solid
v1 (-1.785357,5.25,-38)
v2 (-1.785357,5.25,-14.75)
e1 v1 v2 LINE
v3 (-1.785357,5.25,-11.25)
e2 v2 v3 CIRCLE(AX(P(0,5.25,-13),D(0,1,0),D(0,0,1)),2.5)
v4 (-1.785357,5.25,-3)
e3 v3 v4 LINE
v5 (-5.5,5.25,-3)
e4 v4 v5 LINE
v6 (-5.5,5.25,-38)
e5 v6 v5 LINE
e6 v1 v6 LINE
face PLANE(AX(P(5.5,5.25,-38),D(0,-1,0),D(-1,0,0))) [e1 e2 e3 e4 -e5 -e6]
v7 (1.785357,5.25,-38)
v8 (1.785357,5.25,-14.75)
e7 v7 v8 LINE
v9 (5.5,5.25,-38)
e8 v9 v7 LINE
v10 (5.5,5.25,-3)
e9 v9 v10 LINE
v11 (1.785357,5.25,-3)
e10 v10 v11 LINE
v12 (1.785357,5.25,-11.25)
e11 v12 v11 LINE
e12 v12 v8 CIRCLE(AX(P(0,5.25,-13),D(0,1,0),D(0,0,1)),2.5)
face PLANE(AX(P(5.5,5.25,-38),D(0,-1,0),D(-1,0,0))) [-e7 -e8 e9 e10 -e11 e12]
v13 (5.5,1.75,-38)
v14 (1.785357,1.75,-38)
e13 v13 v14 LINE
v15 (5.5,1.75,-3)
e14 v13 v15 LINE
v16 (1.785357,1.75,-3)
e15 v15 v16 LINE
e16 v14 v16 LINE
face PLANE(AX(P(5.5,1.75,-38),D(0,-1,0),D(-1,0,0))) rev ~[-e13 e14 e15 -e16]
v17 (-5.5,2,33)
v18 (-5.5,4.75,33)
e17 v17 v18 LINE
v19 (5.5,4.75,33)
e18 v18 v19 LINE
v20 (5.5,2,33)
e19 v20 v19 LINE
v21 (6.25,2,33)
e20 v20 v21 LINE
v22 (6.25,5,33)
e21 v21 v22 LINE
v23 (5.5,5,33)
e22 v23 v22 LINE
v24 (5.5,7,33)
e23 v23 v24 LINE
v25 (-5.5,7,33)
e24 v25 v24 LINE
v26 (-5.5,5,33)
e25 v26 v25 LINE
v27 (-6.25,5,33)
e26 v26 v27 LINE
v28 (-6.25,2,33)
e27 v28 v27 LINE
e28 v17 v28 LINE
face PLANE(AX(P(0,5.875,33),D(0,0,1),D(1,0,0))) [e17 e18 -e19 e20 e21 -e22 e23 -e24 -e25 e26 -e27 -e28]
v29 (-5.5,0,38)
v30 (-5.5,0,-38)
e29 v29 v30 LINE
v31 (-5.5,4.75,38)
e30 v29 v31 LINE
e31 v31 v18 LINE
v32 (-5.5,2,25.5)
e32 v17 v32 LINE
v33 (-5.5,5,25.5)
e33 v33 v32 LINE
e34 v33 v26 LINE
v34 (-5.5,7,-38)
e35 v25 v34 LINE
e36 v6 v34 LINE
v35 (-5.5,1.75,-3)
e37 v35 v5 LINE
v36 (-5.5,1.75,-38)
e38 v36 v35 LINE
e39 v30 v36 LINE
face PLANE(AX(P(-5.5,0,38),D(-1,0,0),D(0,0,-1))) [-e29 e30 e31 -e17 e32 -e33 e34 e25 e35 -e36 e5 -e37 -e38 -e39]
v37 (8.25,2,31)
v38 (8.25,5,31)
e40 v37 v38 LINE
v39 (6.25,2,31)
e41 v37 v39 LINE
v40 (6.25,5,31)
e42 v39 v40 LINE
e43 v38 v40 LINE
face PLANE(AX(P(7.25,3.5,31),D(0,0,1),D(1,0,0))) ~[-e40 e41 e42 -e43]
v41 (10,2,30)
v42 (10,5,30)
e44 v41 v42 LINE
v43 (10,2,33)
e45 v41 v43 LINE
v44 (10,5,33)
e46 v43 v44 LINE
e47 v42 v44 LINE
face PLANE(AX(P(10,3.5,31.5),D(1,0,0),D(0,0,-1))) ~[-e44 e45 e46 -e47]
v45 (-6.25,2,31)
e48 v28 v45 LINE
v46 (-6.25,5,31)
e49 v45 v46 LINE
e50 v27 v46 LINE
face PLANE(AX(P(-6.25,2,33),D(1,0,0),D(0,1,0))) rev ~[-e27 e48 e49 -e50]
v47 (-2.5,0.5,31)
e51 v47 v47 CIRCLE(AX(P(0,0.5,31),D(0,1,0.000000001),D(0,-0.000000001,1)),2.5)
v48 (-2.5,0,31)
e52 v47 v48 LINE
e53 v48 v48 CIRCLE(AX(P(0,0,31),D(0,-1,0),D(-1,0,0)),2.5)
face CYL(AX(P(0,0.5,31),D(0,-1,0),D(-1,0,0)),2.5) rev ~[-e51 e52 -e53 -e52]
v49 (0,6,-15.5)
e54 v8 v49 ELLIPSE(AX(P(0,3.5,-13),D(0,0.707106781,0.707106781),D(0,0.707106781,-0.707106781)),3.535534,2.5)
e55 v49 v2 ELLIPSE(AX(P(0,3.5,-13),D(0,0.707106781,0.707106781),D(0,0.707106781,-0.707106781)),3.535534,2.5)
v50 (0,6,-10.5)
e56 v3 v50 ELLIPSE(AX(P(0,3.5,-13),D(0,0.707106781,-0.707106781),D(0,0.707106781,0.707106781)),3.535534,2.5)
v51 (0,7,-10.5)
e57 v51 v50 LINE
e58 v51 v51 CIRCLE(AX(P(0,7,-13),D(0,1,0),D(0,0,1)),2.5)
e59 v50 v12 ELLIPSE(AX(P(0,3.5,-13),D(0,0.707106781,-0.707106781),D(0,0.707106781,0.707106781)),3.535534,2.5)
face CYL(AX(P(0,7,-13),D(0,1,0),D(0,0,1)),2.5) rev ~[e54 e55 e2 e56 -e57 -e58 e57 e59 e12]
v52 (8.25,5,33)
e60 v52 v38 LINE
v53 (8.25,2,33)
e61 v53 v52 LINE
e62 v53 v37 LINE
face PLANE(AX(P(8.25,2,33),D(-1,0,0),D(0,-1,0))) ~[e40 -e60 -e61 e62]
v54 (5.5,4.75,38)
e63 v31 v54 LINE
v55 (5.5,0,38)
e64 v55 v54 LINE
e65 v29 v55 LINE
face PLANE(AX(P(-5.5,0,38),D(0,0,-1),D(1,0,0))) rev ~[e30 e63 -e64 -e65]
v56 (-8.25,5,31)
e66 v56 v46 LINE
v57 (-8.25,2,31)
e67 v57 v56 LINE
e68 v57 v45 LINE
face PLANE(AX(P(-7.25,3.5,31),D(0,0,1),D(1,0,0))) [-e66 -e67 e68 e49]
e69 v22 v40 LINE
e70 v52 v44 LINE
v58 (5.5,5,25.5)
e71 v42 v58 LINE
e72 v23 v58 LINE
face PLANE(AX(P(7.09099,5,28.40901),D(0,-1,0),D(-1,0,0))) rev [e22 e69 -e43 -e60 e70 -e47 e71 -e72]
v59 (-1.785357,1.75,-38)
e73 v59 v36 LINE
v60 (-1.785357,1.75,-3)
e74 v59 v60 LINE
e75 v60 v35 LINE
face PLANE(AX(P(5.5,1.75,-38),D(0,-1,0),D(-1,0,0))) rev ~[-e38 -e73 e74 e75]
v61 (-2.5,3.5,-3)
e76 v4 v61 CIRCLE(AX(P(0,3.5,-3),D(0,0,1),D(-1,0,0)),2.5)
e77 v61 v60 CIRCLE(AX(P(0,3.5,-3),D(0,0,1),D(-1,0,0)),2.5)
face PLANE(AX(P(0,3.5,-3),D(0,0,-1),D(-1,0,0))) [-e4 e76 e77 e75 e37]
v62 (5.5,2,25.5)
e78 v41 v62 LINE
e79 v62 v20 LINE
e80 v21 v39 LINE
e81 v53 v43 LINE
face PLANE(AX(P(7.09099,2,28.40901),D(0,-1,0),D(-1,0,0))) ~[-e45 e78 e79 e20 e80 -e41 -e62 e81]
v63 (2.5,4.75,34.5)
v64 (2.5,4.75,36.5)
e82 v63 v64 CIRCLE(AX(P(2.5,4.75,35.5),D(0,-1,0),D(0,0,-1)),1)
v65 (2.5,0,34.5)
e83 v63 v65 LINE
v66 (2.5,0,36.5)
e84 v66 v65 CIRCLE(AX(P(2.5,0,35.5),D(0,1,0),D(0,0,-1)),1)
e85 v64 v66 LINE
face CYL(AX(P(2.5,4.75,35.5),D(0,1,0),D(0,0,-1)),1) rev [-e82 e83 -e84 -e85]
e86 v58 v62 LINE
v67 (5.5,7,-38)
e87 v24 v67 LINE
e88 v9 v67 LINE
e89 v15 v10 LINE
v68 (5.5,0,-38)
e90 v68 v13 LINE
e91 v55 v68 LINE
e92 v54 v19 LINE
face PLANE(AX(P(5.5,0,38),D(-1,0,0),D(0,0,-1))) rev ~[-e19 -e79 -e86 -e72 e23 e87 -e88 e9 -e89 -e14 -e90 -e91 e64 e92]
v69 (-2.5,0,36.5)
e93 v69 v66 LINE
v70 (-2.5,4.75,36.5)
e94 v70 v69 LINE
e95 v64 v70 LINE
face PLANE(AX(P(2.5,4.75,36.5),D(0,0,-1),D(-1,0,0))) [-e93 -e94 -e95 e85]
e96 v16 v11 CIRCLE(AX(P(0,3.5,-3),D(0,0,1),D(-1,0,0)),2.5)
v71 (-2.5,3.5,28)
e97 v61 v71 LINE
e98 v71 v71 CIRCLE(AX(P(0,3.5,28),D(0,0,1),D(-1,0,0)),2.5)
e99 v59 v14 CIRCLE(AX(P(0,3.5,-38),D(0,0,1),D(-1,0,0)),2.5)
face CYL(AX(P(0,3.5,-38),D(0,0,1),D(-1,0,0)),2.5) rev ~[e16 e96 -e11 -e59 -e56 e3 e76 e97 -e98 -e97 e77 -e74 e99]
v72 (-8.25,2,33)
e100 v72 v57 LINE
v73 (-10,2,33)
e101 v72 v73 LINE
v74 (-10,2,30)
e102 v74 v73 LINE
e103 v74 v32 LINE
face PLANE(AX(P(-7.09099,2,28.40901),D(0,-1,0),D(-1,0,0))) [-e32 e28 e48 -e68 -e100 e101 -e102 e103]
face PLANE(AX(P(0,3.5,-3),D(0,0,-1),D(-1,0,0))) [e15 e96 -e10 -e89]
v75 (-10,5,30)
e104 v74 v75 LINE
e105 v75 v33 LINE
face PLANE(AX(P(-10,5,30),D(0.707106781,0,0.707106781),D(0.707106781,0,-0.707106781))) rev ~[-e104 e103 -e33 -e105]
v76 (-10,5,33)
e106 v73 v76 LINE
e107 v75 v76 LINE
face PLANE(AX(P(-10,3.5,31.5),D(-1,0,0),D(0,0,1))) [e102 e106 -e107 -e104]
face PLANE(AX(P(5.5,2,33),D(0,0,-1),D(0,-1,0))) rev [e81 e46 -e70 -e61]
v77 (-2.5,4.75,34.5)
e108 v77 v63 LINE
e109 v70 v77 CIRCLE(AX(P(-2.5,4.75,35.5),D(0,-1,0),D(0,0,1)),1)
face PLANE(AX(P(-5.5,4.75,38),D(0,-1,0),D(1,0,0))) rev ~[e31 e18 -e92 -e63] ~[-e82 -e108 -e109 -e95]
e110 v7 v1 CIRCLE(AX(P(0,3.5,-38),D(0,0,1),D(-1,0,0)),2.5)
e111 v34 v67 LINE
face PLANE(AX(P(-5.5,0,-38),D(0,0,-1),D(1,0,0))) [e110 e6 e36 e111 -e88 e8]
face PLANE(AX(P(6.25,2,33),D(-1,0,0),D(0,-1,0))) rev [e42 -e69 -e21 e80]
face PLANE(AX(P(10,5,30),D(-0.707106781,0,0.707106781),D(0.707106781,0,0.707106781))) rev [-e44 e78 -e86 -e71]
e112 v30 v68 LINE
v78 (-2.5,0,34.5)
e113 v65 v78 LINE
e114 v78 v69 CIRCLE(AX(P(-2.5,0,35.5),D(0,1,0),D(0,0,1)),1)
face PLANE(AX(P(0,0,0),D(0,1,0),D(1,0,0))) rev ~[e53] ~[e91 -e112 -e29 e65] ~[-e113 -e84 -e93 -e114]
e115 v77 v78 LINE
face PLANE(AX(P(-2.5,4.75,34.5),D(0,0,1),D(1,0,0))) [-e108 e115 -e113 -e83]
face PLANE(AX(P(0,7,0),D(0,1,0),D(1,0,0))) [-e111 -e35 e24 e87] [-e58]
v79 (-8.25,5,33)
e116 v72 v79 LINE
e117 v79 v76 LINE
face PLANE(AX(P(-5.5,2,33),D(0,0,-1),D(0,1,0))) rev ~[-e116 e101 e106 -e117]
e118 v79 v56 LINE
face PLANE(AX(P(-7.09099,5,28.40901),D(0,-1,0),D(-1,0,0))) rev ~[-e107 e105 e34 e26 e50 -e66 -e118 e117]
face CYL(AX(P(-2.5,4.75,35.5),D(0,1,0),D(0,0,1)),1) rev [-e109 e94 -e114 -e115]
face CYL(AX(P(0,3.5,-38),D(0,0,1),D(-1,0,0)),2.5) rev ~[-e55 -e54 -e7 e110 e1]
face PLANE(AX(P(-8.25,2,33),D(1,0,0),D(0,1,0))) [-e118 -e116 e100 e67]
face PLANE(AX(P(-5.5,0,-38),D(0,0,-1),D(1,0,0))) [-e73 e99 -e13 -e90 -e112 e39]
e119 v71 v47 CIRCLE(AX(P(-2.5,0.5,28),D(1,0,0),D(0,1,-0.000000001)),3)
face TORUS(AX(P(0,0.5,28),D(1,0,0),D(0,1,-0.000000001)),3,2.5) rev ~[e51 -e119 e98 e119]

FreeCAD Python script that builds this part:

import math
import FreeCAD as App
import Part
import Sketcher
from FreeCAD import Vector

doc = App.newDocument("Part")
params = doc.addObject("Spreadsheet::Sheet", "Params")
for row, (alias, value) in enumerate([
    ("sketch1_width", "11 mm"),
    ("sketch1_height", "76 mm"),
    ("pad1_length", "7 mm"),
    ("sketch2_diameter", "5 mm"),
    ("sketch3_radius", "3 mm"),
    ("sketch3_height", "66 mm"),
    ("sketch3_width", "0.5 mm"),
    ("sketch4_width", "3 mm"),
    ("pad2_length", "4.5 mm"),
    ("sketch5_width", "2 mm"),
    ("sketch5_height", "3 mm"),
    ("pocket1_length", "2 mm"),
    ("sketch6_width", "4.5 mm"),
    ("pad3_length", "3 mm"),
    ("sketch7_width", "11 mm"),
    ("sketch7_height", "3.5 mm"),
    ("pocket2_length", "35 mm"),
    ("sketch8_diameter", "5 mm"),
    ("pocket3_length", "1.75 mm"),
    ("sketch9_width", "11 mm"),
    ("sketch9_height", "2.25 mm"),
    ("pocket4_length", "5 mm"),
    ("sketch10_radius", "1 mm"),
    ("sketch10_width", "5 mm"),
], start=1):
    params.set(f"A{row}", alias)
    params.set(f"B{row}", "=" + value)
    params.setAlias(f"B{row}", alias)

body = doc.addObject("PartDesign::Body", "Body")

sketch1 = doc.addObject("Sketcher::SketchObject", "Sketch")
body.addObject(sketch1)
sketch1.AttachmentSupport = (doc.XZ_Plane, [""])
sketch1.MapMode = "FlatFace"
sketch1.addGeometry([
    Part.LineSegment(Vector(-5.5, -38, 0), Vector(-5.5, 38, 0)),
    Part.LineSegment(Vector(-5.5, 38, 0), Vector(5.5, 38, 0)),
    Part.LineSegment(Vector(5.5, 38, 0), Vector(5.5, -38, 0)),
    Part.LineSegment(Vector(5.5, -38, 0), Vector(-5.5, -38, 0)),
], False)
sketch1.addConstraint([
    Sketcher.Constraint("Coincident", 0, 2, 1, 1),
    Sketcher.Constraint("Coincident", 1, 2, 2, 1),
    Sketcher.Constraint("Coincident", 2, 2, 3, 1),
    Sketcher.Constraint("Coincident", 3, 2, 0, 1),
    Sketcher.Constraint("Vertical", 0),
    Sketcher.Constraint("Horizontal", 1),
    Sketcher.Constraint("Vertical", 2),
    Sketcher.Constraint("Horizontal", 3),
    Sketcher.Constraint("Symmetric", 0, 2, 2, 2, -1, 1),
    Sketcher.Constraint("DistanceX", 1, 1, 1, 2, 11.0),
    Sketcher.Constraint("DistanceY", 0, 1, 0, 2, 76.0),
])
sketch1.setExpression("Constraints[9]", "Params.sketch1_width")
sketch1.setExpression("Constraints[10]", "Params.sketch1_height")
pad1 = doc.addObject("PartDesign::Pad", "Pad")
body.addObject(pad1)
pad1.Profile = sketch1
pad1.setExpression("Length", "Params.pad1_length")
pad1.Reversed = True

sketch2 = doc.addObject("Sketcher::SketchObject", "Sketch001")
body.addObject(sketch2)
sketch2.AttachmentSupport = (doc.XY_Plane, [""])
sketch2.MapMode = "FlatFace"
sketch2.AttachmentOffset = App.Placement(Vector(0, 0, -38), App.Rotation())
sketch2.addGeometry(Part.Circle(Vector(0, 3.5, 0), Vector(0, 0, 1), 2.5), False)
sketch2.addConstraint([
    Sketcher.Constraint("PointOnObject", 0, 3, -2),
    Sketcher.Constraint("Diameter", 0, 5.0),
    Sketcher.Constraint("DistanceY", -1, 1, 0, 3, 3.5),
])
sketch2.setExpression("Constraints[1]", "Params.sketch2_diameter")

sketch3 = doc.addObject("Sketcher::SketchObject", "Sketch002")
body.addObject(sketch3)
sketch3.AttachmentSupport = (doc.YZ_Plane, [""])
sketch3.MapMode = "FlatFace"
sketch3.addGeometry([
    Part.LineSegment(Vector(3.5, -38, 0), Vector(3.5, 28, 0)),
    Part.ArcOfCircle(Part.Circle(Vector(0.5, 28, 0), Vector(0, 0, 1), 3), math.radians(0), math.radians(90)),
    Part.LineSegment(Vector(0.5, 31, 0), Vector(0, 31, 0)),
], False)
sketch3.addConstraint([
    Sketcher.Constraint("Tangent", 0, 2, 1, 1),
    Sketcher.Constraint("Tangent", 1, 2, 2, 1),
    Sketcher.Constraint("Vertical", 0),
    Sketcher.Constraint("Horizontal", 2),
    Sketcher.Constraint("PointOnObject", 2, 2, -2),
    Sketcher.Constraint("Radius", 1, 3.0),
    Sketcher.Constraint("DistanceY", 0, 1, 0, 2, 66.0),
    Sketcher.Constraint("DistanceX", 2, 2, 2, 1, 0.5),
    Sketcher.Constraint("DistanceY", -1, 1, 1, 3, 28.0),
])
sketch3.setExpression("Constraints[5]", "Params.sketch3_radius")
sketch3.setExpression("Constraints[6]", "Params.sketch3_height")
sketch3.setExpression("Constraints[7]", "Params.sketch3_width")
doc.recompute()

subtractivepipe = doc.addObject("PartDesign::SubtractivePipe", "SubtractivePipe")
body.addObject(subtractivepipe)
subtractivepipe.Profile = sketch2
subtractivepipe.Spine = (sketch3, ["Edge1", "Edge2", "Edge3"])

sketch4 = doc.addObject("Sketcher::SketchObject", "Sketch003")
body.addObject(sketch4)
sketch4.AttachmentSupport = (doc.YZ_Plane, [""])
sketch4.MapMode = "FlatFace"
sketch4.AttachmentOffset = App.Placement(Vector(0, 0, -5.5), App.Rotation())
sketch4.addGeometry([
    Part.LineSegment(Vector(5, 30, 0), Vector(2, 30, 0)),
    Part.LineSegment(Vector(2, 30, 0), Vector(2, 33, 0)),
    Part.LineSegment(Vector(2, 33, 0), Vector(5, 33, 0)),
    Part.LineSegment(Vector(5, 33, 0), Vector(5, 30, 0)),
], False)
sketch4.addConstraint([
    Sketcher.Constraint("Coincident", 0, 2, 1, 1),
    Sketcher.Constraint("Coincident", 1, 2, 2, 1),
    Sketcher.Constraint("Coincident", 2, 2, 3, 1),
    Sketcher.Constraint("Coincident", 3, 2, 0, 1),
    Sketcher.Constraint("Horizontal", 0),
    Sketcher.Constraint("Vertical", 1),
    Sketcher.Constraint("Horizontal", 2),
    Sketcher.Constraint("Vertical", 3),
    Sketcher.Constraint("Equal", 2, 1),
    Sketcher.Constraint("DistanceX", 0, 2, 0, 1, 3.0),
    Sketcher.Constraint("DistanceX", -1, 1, 0, 2, 2.0),
    Sketcher.Constraint("DistanceY", -1, 1, 0, 2, 30.0),
])
sketch4.setExpression("Constraints[9]", "Params.sketch4_width")
pad2 = doc.addObject("PartDesign::Pad", "Pad001")
body.addObject(pad2)
pad2.Profile = sketch4
pad2.setExpression("Length", "Params.pad2_length")
pad2.Reversed = True
doc.recompute()

mirrored = doc.addObject("PartDesign::Mirrored", "Mirrored")
body.addObject(mirrored)
mirrored.Originals = [pad2]
mirrored.MirrorPlane = (doc.YZ_Plane, [""])
body.Tip = mirrored

sketch5 = doc.addObject("Sketcher::SketchObject", "Sketch004")
body.addObject(sketch5)
sketch5.AttachmentSupport = (doc.XY_Plane, [""])
sketch5.MapMode = "FlatFace"
sketch5.AttachmentOffset = App.Placement(Vector(0, 0, 33), App.Rotation())
sketch5.addGeometry([
    Part.LineSegment(Vector(-8.25, 5, 0), Vector(-8.25, 2, 0)),
    Part.LineSegment(Vector(-8.25, 2, 0), Vector(-6.25, 2, 0)),
    Part.LineSegment(Vector(-6.25, 2, 0), Vector(-6.25, 5, 0)),
    Part.LineSegment(Vector(-6.25, 5, 0), Vector(-8.25, 5, 0)),
], False)
sketch5.addConstraint([
    Sketcher.Constraint("Coincident", 0, 2, 1, 1),
    Sketcher.Constraint("Coincident", 1, 2, 2, 1),
    Sketcher.Constraint("Coincident", 2, 2, 3, 1),
    Sketcher.Constraint("Coincident", 3, 2, 0, 1),
    Sketcher.Constraint("Vertical", 0),
    Sketcher.Constraint("Horizontal", 1),
    Sketcher.Constraint("Vertical", 2),
    Sketcher.Constraint("Horizontal", 3),
    Sketcher.Constraint("DistanceX", 1, 1, 1, 2, 2.0),
    Sketcher.Constraint("DistanceY", 0, 2, 0, 1, 3.0),
    Sketcher.Constraint("DistanceY", -1, 1, 0, 2, 2.0),
    Sketcher.Constraint("DistanceX", 0, 2, -1, 1, 8.25),
])
sketch5.setExpression("Constraints[8]", "Params.sketch5_width")
sketch5.setExpression("Constraints[9]", "Params.sketch5_height")
pocket1 = doc.addObject("PartDesign::Pocket", "Pocket")
body.addObject(pocket1)
pocket1.Profile = sketch5
pocket1.setExpression("Length", "Params.pocket1_length")
doc.recompute()

mirrored2 = doc.addObject("PartDesign::Mirrored", "Mirrored001")
body.addObject(mirrored2)
mirrored2.Originals = [pocket1]
mirrored2.MirrorPlane = (doc.YZ_Plane, [""])
body.Tip = mirrored2

sketch6 = doc.addObject("Sketcher::SketchObject", "Sketch005")
body.addObject(sketch6)
sketch6.AttachmentSupport = (doc.XZ_Plane, [""])
sketch6.MapMode = "FlatFace"
sketch6.AttachmentOffset = App.Placement(Vector(0, 0, -5), App.Rotation())
sketch6.addGeometry([
    Part.LineSegment(Vector(-5.5, 25.5, 0), Vector(-10, 30, 0)),
    Part.LineSegment(Vector(-10, 30, 0), Vector(-5.5, 30, 0)),
    Part.LineSegment(Vector(-5.5, 30, 0), Vector(-5.5, 25.5, 0)),
], False)
sketch6.addConstraint([
    Sketcher.Constraint("Coincident", 0, 2, 1, 1),
    Sketcher.Constraint("Coincident", 1, 2, 2, 1),
    Sketcher.Constraint("Coincident", 2, 2, 0, 1),
    Sketcher.Constraint("Horizontal", 1),
    Sketcher.Constraint("Vertical", 2),
    Sketcher.Constraint("Equal", 1, 2),
    Sketcher.Constraint("DistanceX", 1, 1, 1, 2, 4.5),
    Sketcher.Constraint("DistanceX", 0, 2, -1, 1, 10.0),
    Sketcher.Constraint("DistanceY", -1, 1, 0, 2, 30.0),
])
sketch6.setExpression("Constraints[6]", "Params.sketch6_width")
pad3 = doc.addObject("PartDesign::Pad", "Pad002")
body.addObject(pad3)
pad3.Profile = sketch6
pad3.setExpression("Length", "Params.pad3_length")
doc.recompute()

mirrored3 = doc.addObject("PartDesign::Mirrored", "Mirrored002")
body.addObject(mirrored3)
mirrored3.Originals = [pad3]
mirrored3.MirrorPlane = (doc.YZ_Plane, [""])
body.Tip = mirrored3

sketch7 = doc.addObject("Sketcher::SketchObject", "Sketch006")
body.addObject(sketch7)
sketch7.AttachmentSupport = (doc.XY_Plane, [""])
sketch7.MapMode = "FlatFace"
sketch7.AttachmentOffset = App.Placement(Vector(0, 0, -38), App.Rotation())
sketch7.addGeometry([
    Part.LineSegment(Vector(5.5, 5.25, 0), Vector(5.5, 1.75, 0)),
    Part.LineSegment(Vector(5.5, 1.75, 0), Vector(-5.5, 1.75, 0)),
    Part.LineSegment(Vector(-5.5, 1.75, 0), Vector(-5.5, 5.25, 0)),
    Part.LineSegment(Vector(-5.5, 5.25, 0), Vector(5.5, 5.25, 0)),
], False)
sketch7.addConstraint([
    Sketcher.Constraint("Coincident", 0, 2, 1, 1),
    Sketcher.Constraint("Coincident", 1, 2, 2, 1),
    Sketcher.Constraint("Coincident", 2, 2, 3, 1),
    Sketcher.Constraint("Coincident", 3, 2, 0, 1),
    Sketcher.Constraint("Vertical", 0),
    Sketcher.Constraint("Horizontal", 1),
    Sketcher.Constraint("Vertical", 2),
    Sketcher.Constraint("Horizontal", 3),
    Sketcher.Constraint("DistanceX", 1, 2, 1, 1, 11.0),
    Sketcher.Constraint("DistanceY", 0, 2, 0, 1, 3.5),
    Sketcher.Constraint("DistanceX", -1, 1, 0, 2, 5.5),
    Sketcher.Constraint("DistanceY", -1, 1, 0, 2, 1.75),
])
sketch7.setExpression("Constraints[8]", "Params.sketch7_width")
sketch7.setExpression("Constraints[9]", "Params.sketch7_height")
pocket2 = doc.addObject("PartDesign::Pocket", "Pocket001")
body.addObject(pocket2)
pocket2.Profile = sketch7
pocket2.setExpression("Length", "Params.pocket2_length")
pocket2.Reversed = True

sketch8 = doc.addObject("Sketcher::SketchObject", "Sketch007")
body.addObject(sketch8)
sketch8.AttachmentSupport = (doc.XZ_Plane, [""])
sketch8.MapMode = "FlatFace"
sketch8.AttachmentOffset = App.Placement(Vector(0, 0, -7), App.Rotation())
sketch8.addGeometry(Part.Circle(Vector(0, -13, 0), Vector(0, 0, 1), 2.5), False)
sketch8.addConstraint([
    Sketcher.Constraint("PointOnObject", 0, 3, -2),
    Sketcher.Constraint("Diameter", 0, 5.0),
    Sketcher.Constraint("DistanceY", 0, 3, -1, 1, 13.0),
])
sketch8.setExpression("Constraints[1]", "Params.sketch8_diameter")
pocket3 = doc.addObject("PartDesign::Pocket", "Pocket002")
body.addObject(pocket3)
pocket3.Profile = sketch8
pocket3.setExpression("Length", "Params.pocket3_length")
pocket3.Reversed = True

sketch9 = doc.addObject("Sketcher::SketchObject", "Sketch008")
body.addObject(sketch9)
sketch9.AttachmentSupport = (doc.XY_Plane, [""])
sketch9.MapMode = "FlatFace"
sketch9.AttachmentOffset = App.Placement(Vector(0, 0, 38), App.Rotation())
sketch9.addGeometry([
    Part.LineSegment(Vector(-5.5, 7, 0), Vector(-5.5, 4.75, 0)),
    Part.LineSegment(Vector(-5.5, 4.75, 0), Vector(5.5, 4.75, 0)),
    Part.LineSegment(Vector(5.5, 4.75, 0), Vector(5.5, 7, 0)),
    Part.LineSegment(Vector(5.5, 7, 0), Vector(-5.5, 7, 0)),
], False)
sketch9.addConstraint([
    Sketcher.Constraint("Coincident", 0, 2, 1, 1),
    Sketcher.Constraint("Coincident", 1, 2, 2, 1),
    Sketcher.Constraint("Coincident", 2, 2, 3, 1),
    Sketcher.Constraint("Coincident", 3, 2, 0, 1),
    Sketcher.Constraint("Vertical", 0),
    Sketcher.Constraint("Horizontal", 1),
    Sketcher.Constraint("Vertical", 2),
    Sketcher.Constraint("Horizontal", 3),
    Sketcher.Constraint("DistanceX", 1, 1, 1, 2, 11.0),
    Sketcher.Constraint("DistanceY", -1, 1, 2, 2, 7.0),
    Sketcher.Constraint("DistanceY", 0, 2, 0, 1, 2.25),
    Sketcher.Constraint("DistanceX", 0, 2, -1, 1, 5.5),
])
sketch9.setExpression("Constraints[8]", "Params.sketch9_width")
sketch9.setExpression("Constraints[10]", "Params.sketch9_height")
pocket4 = doc.addObject("PartDesign::Pocket", "Pocket003")
body.addObject(pocket4)
pocket4.Profile = sketch9
pocket4.setExpression("Length", "Params.pocket4_length")

sketch10 = doc.addObject("Sketcher::SketchObject", "Sketch009")
body.addObject(sketch10)
sketch10.AttachmentSupport = (doc.XZ_Plane, [""])
sketch10.MapMode = "FlatFace"
sketch10.AttachmentOffset = App.Placement(Vector(0, 0, -4.75), App.Rotation())
sketch10.addGeometry([
    Part.LineSegment(Vector(2.5, 34.5, 0), Vector(-2.5, 34.5, 0)),
    Part.ArcOfCircle(Part.Circle(Vector(-2.5, 35.5, 0), Vector(0, 0, 1), 1), math.radians(90), math.radians(270)),
    Part.LineSegment(Vector(-2.5, 36.5, 0), Vector(2.5, 36.5, 0)),
    Part.ArcOfCircle(Part.Circle(Vector(2.5, 35.5, 0), Vector(0, 0, 1), 1), math.radians(-90), math.radians(90)),
], False)
sketch10.addConstraint([
    Sketcher.Constraint("Tangent", 0, 2, 1, 2),
    Sketcher.Constraint("Tangent", 1, 1, 2, 1),
    Sketcher.Constraint("Tangent", 2, 2, 3, 2),
    Sketcher.Constraint("Tangent", 3, 1, 0, 1),
    Sketcher.Constraint("Horizontal", 0),
    Sketcher.Constraint("Horizontal", 2),
    Sketcher.Constraint("Radius", 1, 1.0),
    Sketcher.Constraint("DistanceX", 0, 2, 0, 1, 5.0),
    Sketcher.Constraint("DistanceX", 1, 3, -1, 1, 2.5),
    Sketcher.Constraint("DistanceY", -1, 1, 1, 3, 35.5),
])
sketch10.setExpression("Constraints[6]", "Params.sketch10_radius")
sketch10.setExpression("Constraints[7]", "Params.sketch10_width")
pocket5 = doc.addObject("PartDesign::Pocket", "Pocket004")
body.addObject(pocket5)
pocket5.Profile = sketch10
pocket5.Type = "UpToFirst"
pocket5.Reversed = True

doc.recompute()
